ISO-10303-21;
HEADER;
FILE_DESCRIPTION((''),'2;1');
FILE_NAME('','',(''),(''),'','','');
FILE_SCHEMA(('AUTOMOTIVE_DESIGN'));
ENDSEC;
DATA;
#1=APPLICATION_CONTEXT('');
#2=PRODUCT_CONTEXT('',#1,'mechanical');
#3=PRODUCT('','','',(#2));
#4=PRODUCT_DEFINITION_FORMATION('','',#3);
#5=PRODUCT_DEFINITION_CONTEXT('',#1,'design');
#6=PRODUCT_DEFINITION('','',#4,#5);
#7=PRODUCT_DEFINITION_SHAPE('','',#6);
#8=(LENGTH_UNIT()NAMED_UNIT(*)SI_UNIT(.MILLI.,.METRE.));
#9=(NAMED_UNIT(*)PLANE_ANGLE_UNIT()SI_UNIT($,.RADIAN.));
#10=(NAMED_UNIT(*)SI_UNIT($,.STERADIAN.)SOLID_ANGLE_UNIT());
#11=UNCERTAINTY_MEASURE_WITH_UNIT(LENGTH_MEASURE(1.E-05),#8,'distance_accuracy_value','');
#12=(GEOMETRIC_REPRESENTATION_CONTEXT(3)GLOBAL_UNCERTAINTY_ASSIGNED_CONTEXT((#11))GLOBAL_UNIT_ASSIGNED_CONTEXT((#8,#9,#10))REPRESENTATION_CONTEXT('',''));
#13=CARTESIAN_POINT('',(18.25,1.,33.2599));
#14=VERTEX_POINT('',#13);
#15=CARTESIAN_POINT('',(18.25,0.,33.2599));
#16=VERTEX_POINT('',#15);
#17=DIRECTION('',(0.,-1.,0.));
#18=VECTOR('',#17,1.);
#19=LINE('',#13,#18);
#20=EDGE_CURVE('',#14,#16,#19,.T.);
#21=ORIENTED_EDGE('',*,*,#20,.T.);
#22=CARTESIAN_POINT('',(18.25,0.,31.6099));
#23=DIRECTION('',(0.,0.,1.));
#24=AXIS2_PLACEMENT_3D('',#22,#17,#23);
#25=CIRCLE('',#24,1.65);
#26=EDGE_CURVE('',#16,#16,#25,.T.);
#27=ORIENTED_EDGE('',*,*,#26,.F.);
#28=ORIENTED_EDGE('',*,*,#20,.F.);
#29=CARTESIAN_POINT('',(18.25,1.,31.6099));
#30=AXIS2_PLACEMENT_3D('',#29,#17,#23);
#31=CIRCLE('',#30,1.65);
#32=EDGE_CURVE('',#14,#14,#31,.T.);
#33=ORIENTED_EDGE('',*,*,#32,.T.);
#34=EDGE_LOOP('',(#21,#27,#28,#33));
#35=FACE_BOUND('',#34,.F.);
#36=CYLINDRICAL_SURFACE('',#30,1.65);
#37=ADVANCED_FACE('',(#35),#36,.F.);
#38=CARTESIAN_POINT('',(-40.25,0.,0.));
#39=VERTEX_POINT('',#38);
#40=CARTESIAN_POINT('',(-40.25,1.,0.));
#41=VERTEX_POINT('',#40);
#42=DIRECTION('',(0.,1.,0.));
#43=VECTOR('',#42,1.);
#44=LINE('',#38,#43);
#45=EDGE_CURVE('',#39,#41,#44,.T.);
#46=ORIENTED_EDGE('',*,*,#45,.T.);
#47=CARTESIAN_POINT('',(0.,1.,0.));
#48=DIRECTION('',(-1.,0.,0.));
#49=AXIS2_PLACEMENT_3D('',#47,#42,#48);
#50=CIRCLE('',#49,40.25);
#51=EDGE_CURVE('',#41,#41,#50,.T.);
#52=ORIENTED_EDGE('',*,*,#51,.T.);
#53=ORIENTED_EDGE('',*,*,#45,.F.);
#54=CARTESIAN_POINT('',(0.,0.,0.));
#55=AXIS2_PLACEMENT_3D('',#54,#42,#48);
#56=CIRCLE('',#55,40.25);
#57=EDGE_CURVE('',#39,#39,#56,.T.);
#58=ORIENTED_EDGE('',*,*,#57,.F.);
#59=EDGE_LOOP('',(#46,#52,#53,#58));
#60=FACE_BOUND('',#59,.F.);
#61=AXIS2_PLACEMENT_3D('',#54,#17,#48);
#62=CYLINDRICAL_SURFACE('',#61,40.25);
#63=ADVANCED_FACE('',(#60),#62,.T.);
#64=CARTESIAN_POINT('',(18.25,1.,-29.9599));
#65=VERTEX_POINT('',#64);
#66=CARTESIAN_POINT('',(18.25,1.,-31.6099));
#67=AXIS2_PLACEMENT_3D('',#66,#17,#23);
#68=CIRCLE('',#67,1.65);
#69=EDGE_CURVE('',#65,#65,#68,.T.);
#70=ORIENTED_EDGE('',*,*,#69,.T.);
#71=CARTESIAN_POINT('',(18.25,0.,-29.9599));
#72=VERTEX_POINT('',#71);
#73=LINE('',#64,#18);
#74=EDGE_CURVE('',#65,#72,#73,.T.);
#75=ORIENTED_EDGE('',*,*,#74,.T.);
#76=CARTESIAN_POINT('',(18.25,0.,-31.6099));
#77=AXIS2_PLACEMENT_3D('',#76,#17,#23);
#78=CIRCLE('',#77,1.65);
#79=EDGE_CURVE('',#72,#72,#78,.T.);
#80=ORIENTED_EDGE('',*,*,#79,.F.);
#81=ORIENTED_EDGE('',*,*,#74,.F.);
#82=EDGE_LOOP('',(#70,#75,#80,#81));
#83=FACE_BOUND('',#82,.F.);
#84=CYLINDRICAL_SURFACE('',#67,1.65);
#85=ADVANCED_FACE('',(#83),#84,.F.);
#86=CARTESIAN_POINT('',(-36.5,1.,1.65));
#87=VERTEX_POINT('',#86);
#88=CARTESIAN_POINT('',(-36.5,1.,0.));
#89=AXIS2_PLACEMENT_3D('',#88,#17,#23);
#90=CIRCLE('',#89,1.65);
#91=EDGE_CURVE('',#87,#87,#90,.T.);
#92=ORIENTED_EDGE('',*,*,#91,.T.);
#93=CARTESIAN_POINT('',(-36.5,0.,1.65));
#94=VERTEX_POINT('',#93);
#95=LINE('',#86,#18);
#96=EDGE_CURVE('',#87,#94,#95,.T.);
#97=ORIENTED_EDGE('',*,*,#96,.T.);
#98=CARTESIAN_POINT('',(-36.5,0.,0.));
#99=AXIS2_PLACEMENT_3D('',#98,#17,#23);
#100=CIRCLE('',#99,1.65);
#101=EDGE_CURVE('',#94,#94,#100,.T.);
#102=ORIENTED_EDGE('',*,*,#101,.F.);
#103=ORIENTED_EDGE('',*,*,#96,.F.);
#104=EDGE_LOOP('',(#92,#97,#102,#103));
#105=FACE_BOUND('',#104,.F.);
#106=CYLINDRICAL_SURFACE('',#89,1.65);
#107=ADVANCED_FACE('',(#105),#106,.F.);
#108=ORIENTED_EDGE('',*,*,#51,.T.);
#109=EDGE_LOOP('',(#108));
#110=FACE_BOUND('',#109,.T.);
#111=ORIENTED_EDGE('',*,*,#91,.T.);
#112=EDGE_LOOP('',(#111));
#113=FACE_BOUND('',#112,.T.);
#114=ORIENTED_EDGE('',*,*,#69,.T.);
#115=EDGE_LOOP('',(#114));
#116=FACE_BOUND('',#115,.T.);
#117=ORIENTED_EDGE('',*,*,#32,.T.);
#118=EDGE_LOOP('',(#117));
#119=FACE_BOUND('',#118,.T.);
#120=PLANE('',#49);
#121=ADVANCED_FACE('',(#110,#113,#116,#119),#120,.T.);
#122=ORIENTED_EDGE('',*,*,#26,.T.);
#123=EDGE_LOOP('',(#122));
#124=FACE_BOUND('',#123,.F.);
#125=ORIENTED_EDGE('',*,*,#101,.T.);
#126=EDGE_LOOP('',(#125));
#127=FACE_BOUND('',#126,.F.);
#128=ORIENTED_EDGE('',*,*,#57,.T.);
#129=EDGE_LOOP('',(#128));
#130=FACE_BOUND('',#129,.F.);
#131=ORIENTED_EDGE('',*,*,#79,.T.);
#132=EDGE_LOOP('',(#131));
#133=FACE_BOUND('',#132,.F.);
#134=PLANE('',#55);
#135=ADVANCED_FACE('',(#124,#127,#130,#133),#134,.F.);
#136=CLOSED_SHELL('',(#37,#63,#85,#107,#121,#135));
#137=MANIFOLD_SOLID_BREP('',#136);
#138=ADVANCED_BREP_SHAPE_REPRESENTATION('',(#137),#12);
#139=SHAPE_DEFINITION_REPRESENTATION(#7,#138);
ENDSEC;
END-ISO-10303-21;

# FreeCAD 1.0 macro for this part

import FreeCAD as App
import Part
import Sketcher

V = App.Vector
Q = App.Units.Quantity

doc = App.newDocument("Part")
params = doc.addObject("Spreadsheet::Sheet", "Params")
for row, (alias, value) in enumerate([
    ("sketch1_diameter", "80.5 mm"),
    ("pad1_length", "1 mm"),
    ("sketch2_diameter", "3.3 mm"),
    ("hole_diameter", "3.3 mm"),
], start=1):
    params.set(f"A{row}", alias)
    params.set(f"B{row}", "=" + value)
    params.setAlias(f"B{row}", alias)

body = doc.addObject("PartDesign::Body", "Body")

sketch1 = doc.addObject("Sketcher::SketchObject", "Sketch")
body.addObject(sketch1)
sketch1.AttachmentSupport = (doc.XZ_Plane, [""])
sketch1.MapMode = "FlatFace"
sketch1.addGeometry(Part.Circle(V(0, 0, 0), V(0, 0, 1), 40), False)
sketch1.addConstraint([
    Sketcher.Constraint("Coincident", 0, 3, -1, 1),
    Sketcher.Constraint("Diameter", 0, Q("80.5 mm")),
])
sketch1.setExpression("Constraints[1]", "Params.sketch1_diameter")
pad1 = doc.addObject("PartDesign::Pad", "Pad")
body.addObject(pad1)
pad1.Profile = sketch1
pad1.setExpression("Length", "Params.pad1_length")
pad1.Reversed = True

sketch2 = doc.addObject("Sketcher::SketchObject", "Sketch001")
body.addObject(sketch2)
sketch2.AttachmentSupport = (doc.XZ_Plane, [""])
sketch2.MapMode = "FlatFace"
sketch2.AttachmentOffset = App.Placement(V(0, 0, -1), App.Rotation())
sketch2.addGeometry([
    Part.Circle(V(-36.5, 0, 0), V(0, 0, 1), 1.6),
    Part.Circle(V(18.2, 31.6, 0), V(0, 0, 1), 1.6),
    Part.Circle(V(18.2, -31.6, 0), V(0, 0, 1), 1.6),
], False)
sketch2.addConstraint([
    Sketcher.Constraint("Equal", 0, 1),
    Sketcher.Constraint("Equal", 1, 2),
    Sketcher.Constraint("Symmetric", 1, 3, 2, 3, -1),
    Sketcher.Constraint("PointOnObject", 0, 3, -1),
    Sketcher.Constraint("Diameter", 0, Q("3.3 mm")),
    Sketcher.Constraint("DistanceX", 0, 3, -1, 1, Q("36.5 mm")),
    Sketcher.Constraint("DistanceX", -1, 1, 1, 3, Q("18.25 mm")),
    Sketcher.Constraint("DistanceY", -1, 1, 1, 3, Q("31.61 mm")),
])
sketch2.setExpression("Constraints[4]", "Params.sketch2_diameter")
doc.recompute()
hole = doc.addObject("PartDesign::Hole", "Hole")
body.addObject(hole)
hole.Profile = sketch2
hole.ThreadType = "None"
hole.setExpression("Diameter", "Params.hole_diameter")
hole.DepthType = "ThroughAll"
hole.Reversed = True

doc.recompute()
